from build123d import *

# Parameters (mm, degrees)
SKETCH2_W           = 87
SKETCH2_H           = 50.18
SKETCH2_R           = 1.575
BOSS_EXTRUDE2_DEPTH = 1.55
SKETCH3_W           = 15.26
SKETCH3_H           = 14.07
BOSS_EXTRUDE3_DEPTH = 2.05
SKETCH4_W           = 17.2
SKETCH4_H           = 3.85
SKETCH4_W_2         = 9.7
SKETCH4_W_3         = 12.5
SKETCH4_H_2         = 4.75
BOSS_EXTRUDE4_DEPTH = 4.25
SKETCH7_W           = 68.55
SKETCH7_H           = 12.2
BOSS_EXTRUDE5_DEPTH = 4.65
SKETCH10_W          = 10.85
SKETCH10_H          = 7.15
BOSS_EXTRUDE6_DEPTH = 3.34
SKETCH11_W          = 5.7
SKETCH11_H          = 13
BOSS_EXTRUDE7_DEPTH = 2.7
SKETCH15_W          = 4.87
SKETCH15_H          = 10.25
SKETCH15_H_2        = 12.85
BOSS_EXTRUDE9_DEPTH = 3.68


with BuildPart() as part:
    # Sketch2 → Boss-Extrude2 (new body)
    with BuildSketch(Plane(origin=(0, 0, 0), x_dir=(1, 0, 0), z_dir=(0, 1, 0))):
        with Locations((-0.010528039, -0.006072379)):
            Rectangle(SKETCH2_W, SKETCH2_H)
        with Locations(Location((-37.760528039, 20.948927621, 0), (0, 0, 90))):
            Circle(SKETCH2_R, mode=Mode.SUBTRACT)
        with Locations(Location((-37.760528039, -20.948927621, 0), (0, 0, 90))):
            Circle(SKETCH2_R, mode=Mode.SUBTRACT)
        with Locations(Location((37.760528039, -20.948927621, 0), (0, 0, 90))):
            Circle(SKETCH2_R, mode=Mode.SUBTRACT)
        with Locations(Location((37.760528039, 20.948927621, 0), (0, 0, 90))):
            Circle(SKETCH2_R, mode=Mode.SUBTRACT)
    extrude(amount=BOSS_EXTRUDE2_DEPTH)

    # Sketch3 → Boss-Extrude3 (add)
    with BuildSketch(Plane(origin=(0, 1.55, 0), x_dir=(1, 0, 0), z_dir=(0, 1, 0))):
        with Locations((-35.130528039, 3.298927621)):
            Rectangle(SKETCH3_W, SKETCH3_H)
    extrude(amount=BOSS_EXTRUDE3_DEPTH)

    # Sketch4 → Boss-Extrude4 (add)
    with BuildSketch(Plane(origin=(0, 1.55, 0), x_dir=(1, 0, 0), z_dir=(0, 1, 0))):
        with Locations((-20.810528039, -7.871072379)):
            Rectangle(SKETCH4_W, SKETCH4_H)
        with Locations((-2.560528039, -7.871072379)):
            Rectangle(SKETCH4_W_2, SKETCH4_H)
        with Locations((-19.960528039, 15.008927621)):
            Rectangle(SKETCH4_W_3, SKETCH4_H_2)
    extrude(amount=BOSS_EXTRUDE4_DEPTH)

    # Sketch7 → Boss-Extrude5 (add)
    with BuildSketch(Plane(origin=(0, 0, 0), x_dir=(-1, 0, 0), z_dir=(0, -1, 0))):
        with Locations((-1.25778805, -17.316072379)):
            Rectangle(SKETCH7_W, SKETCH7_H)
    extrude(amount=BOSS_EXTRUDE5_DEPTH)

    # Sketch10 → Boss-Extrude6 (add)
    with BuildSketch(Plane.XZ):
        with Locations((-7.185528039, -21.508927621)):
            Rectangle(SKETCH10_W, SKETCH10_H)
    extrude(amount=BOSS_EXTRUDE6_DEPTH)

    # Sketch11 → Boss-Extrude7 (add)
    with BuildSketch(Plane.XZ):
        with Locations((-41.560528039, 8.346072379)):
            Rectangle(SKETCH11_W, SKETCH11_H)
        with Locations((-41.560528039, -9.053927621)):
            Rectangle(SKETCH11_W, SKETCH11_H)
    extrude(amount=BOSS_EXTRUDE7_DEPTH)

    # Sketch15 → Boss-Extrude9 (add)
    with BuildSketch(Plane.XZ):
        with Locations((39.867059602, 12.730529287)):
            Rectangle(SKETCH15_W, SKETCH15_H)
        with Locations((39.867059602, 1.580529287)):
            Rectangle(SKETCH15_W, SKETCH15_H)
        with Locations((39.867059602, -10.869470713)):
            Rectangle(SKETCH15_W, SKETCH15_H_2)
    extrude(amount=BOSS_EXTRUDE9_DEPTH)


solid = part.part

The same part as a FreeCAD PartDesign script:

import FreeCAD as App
import Part
import Sketcher

V = App.Vector


def add_polygon(sketch, points):
    """Adds a closed chain of lines whose ends are joined by coincident constraints."""
    first, n = sketch.GeometryCount, len(points)
    for a, b in zip(points, points[1:] + points[:1]):
        sketch.addGeometry(Part.LineSegment(App.Vector(*a, 0), App.Vector(*b, 0)), False)
    for i in range(n):
        sketch.addConstraint(Sketcher.Constraint("Coincident", first + i, 2, first + (i + 1) % n, 1))

doc = App.newDocument("Part")
params = doc.addObject("Spreadsheet::Sheet", "Params")
for row, (alias, value) in enumerate([
    ("sketch1_diameter", "3.15 mm"),
    ("sketch1_width", "87 mm"),
    ("sketch1_height", "50.18 mm"),
    ("pad1_length", "1.55 mm"),
    ("sketch2_width", "15.26 mm"),
    ("sketch2_height", "14.07 mm"),
    ("pad2_length", "2.05 mm"),
    ("sketch3_width", "17.2 mm"),
    ("sketch3_width2", "9.7 mm"),
    ("sketch3_width3", "12.5 mm"),
    ("sketch3_height", "3.85 mm"),
    ("sketch3_height2", "4.75 mm"),
    ("pad3_length", "4.25 mm"),
    ("sketch4_height", "12.2 mm"),
    ("sketch4_width", "68.55 mm"),
    ("pad4_length", "4.65 mm"),
    ("sketch5_width", "10.85 mm"),
    ("sketch5_height", "7.15 mm"),
    ("pad5_length", "3.34 mm"),
    ("sketch6_height", "13 mm"),
    ("sketch6_width", "5.7 mm"),
    ("pad6_length", "2.7 mm"),
    ("sketch7_width", "4.87 mm"),
    ("sketch7_height", "10.25 mm"),
    ("sketch7_height2", "12.85 mm"),
    ("pad7_length", "3.68 mm"),
], start=1):
    params.set(f"A{row}", alias)
    params.set(f"B{row}", "=" + value)
    params.setAlias(f"B{row}", alias)

body = doc.addObject("PartDesign::Body", "Body")

# Sketch on XZ plane
sketch1 = body.newObject("Sketcher::SketchObject", "Sketch")
sketch1.AttachmentSupport = (doc.getObject("XZ_Plane"), [""])
sketch1.MapMode = "FlatFace"
add_polygon(sketch1, [(-43.5, -25.1), (-43.5, 25.1), (43.5, 25.1), (43.5, -25.1)])  # lines 0-3
sketch1.addGeometry(Part.Circle(V(-37.8, 20.9, 0), V(0, 0, 1), 1.6), False)  # 4
sketch1.addGeometry(Part.Circle(V(37.8, 20.9, 0), V(0, 0, 1), 1.6), False)  # 5
sketch1.addGeometry(Part.Circle(V(-37.8, -20.9, 0), V(0, 0, 1), 1.6), False)  # 6
sketch1.addGeometry(Part.Circle(V(37.8, -20.9, 0), V(0, 0, 1), 1.6), False)  # 7
sketch1.addConstraint([
    Sketcher.Constraint("Vertical", 0),
    Sketcher.Constraint("Horizontal", 1),
    Sketcher.Constraint("Vertical", 2),
    Sketcher.Constraint("Horizontal", 3),
    Sketcher.Constraint("Equal", 4, 5),
    Sketcher.Constraint("Equal", 5, 6),
    Sketcher.Constraint("Equal", 6, 7),
    Sketcher.Constraint("Symmetric", 5, 3, 6, 3, -1, 1),
    Sketcher.Constraint("Symmetric", 4, 3, 7, 3, -1, 1),
    Sketcher.Constraint("Symmetric", 4, 3, 5, 3, -2),
    Sketcher.Constraint("Diameter", 4, 3.15),
    Sketcher.Constraint("DistanceX", 1, 1, 1, 2, 87.0),
    Sketcher.Constraint("DistanceY", 0, 1, 0, 2, 50.18),
    Sketcher.Constraint("DistanceX", 0, 2, 4, 3, 5.75),
    Sketcher.Constraint("DistanceY", 6, 3, 0, 2, 46.045),
    Sketcher.Constraint("DistanceX", 4, 3, -1, 1, 37.760528),
    Sketcher.Constraint("DistanceY", -1, 1, 4, 3, 20.948928),
])
sketch1.setExpression("Constraints[14]", "Params.sketch1_diameter")
sketch1.setExpression("Constraints[15]", "Params.sketch1_width")
sketch1.setExpression("Constraints[16]", "Params.sketch1_height")
pad1 = body.newObject("PartDesign::Pad", "Pad")
pad1.Profile = sketch1
pad1.setExpression("Length", "Params.pad1_length")
pad1.Reversed = True

# Sketch on XZ plane
sketch2 = body.newObject("Sketcher::SketchObject", "Sketch001")
sketch2.AttachmentSupport = (doc.getObject("XZ_Plane"), [""])
sketch2.MapMode = "FlatFace"
sketch2.AttachmentOffset = App.Placement(V(0, 0, -1.55), App.Rotation())
add_polygon(sketch2, [(-43, -10), (-43, 4), (-28, 4), (-28, -10)])  # lines 0-3
sketch2.addConstraint([
    Sketcher.Constraint("Vertical", 0),
    Sketcher.Constraint("Horizontal", 1),
    Sketcher.Constraint("Vertical", 2),
    Sketcher.Constraint("Horizontal", 3),
    Sketcher.Constraint("DistanceX", 1, 1, 1, 2, 15.26),
    Sketcher.Constraint("DistanceY", 0, 1, 0, 2, 14.07),
    Sketcher.Constraint("DistanceX", 0, 2, -1, 1, 42.760528),
    Sketcher.Constraint("DistanceY", -1, 1, 0, 2, 3.736072),
])
sketch2.setExpression("Constraints[8]", "Params.sketch2_width")
sketch2.setExpression("Constraints[9]", "Params.sketch2_height")
pad2 = body.newObject("PartDesign::Pad", "Pad001")
pad2.Profile = sketch2
pad2.setExpression("Length", "Params.pad2_length")
pad2.Reversed = True

# Sketch on XZ plane
sketch3 = body.newObject("Sketcher::SketchObject", "Sketch002")
sketch3.AttachmentSupport = (doc.getObject("XZ_Plane"), [""])
sketch3.MapMode = "FlatFace"
sketch3.AttachmentOffset = App.Placement(V(0, 0, -1.55), App.Rotation())
add_polygon(sketch3, [(-29.4, 5.9), (-29.4, 9.8), (-12.2, 9.8), (-12.2, 5.9)])  # lines 0-3
add_polygon(sketch3, [(-7.4, 5.9), (-7.4, 9.8), (2.3, 9.8), (2.3, 5.9)])  # lines 4-7
add_polygon(sketch3, [(-26.2, -17.4), (-26.2, -12.6), (-13.7, -12.6), (-13.7, -17.4)])  # lines 8-11
sketch3.addConstraint([
    Sketcher.Constraint("Vertical", 0),
    Sketcher.Constraint("Horizontal", 1),
    Sketcher.Constraint("Vertical", 2),
    Sketcher.Constraint("Horizontal", 3),
    Sketcher.Constraint("Vertical", 4),
    Sketcher.Constraint("Horizontal", 5),
    Sketcher.Constraint("Vertical", 6),
    Sketcher.Constraint("Horizontal", 7),
    Sketcher.Constraint("Vertical", 8),
    Sketcher.Constraint("Horizontal", 9),
    Sketcher.Constraint("Vertical", 10),
    Sketcher.Constraint("Horizontal", 11),
    Sketcher.Constraint("Horizontal", 1, 2, 4, 2),
    Sketcher.Constraint("Horizontal", 3, 2, 6, 2),
    Sketcher.Constraint("DistanceX", 1, 1, 1, 2, 17.2),
    Sketcher.Constraint("DistanceX", 5, 1, 5, 2, 9.7),
    Sketcher.Constraint("DistanceX", 9, 1, 9, 2, 12.5),
    Sketcher.Constraint("DistanceX", 0, 2, 4, 2, 22.0),
    Sketcher.Constraint("DistanceX", 8, 2, 2, 2, 14.0),
    Sketcher.Constraint("DistanceY", 0, 1, 0, 2, 3.85),
    Sketcher.Constraint("DistanceY", 8, 1, 8, 2, 4.75),
    Sketcher.Constraint("DistanceY", 8, 2, 3, 2, 18.58),
    Sketcher.Constraint("DistanceX", 0, 2, -1, 1, 29.410528),
    Sketcher.Constraint("DistanceY", -1, 1, 0, 2, 9.796072),
])
sketch3.setExpression("Constraints[26]", "Params.sketch3_width")
sketch3.setExpression("Constraints[27]", "Params.sketch3_width2")
sketch3.setExpression("Constraints[28]", "Params.sketch3_width3")
sketch3.setExpression("Constraints[31]", "Params.sketch3_height")
sketch3.setExpression("Constraints[32]", "Params.sketch3_height2")
pad3 = body.newObject("PartDesign::Pad", "Pad002")
pad3.Profile = sketch3
pad3.setExpression("Length", "Params.pad3_length")
pad3.Reversed = True

# Sketch on XZ plane
sketch4 = body.newObject("Sketcher::SketchObject", "Sketch003")
sketch4.AttachmentSupport = (doc.getObject("XZ_Plane"), [""])
sketch4.MapMode = "FlatFace"
add_polygon(sketch4, [(36, 11), (36, 23), (-33, 23), (-33, 11)])  # lines 0-3
sketch4.addConstraint([
    Sketcher.Constraint("Vertical", 0),
    Sketcher.Constraint("Horizontal", 1),
    Sketcher.Constraint("Vertical", 2),
    Sketcher.Constraint("Horizontal", 3),
    Sketcher.Constraint("DistanceY", 0, 1, 0, 2, 12.2),
    Sketcher.Constraint("DistanceX", 1, 2, 1, 1, 68.55),
    Sketcher.Constraint("DistanceX", -1, 1, 0, 2, 35.532788),
    Sketcher.Constraint("DistanceY", -1, 1, 0, 2, 23.416072),
])
sketch4.setExpression("Constraints[8]", "Params.sketch4_height")
sketch4.setExpression("Constraints[9]", "Params.sketch4_width")
pad4 = body.newObject("PartDesign::Pad", "Pad003")
pad4.Profile = sketch4
pad4.setExpression("Length", "Params.pad4_length")

# Sketch on XZ plane
sketch5 = body.newObject("Sketcher::SketchObject", "Sketch004")
sketch5.AttachmentSupport = (doc.getObject("XZ_Plane"), [""])
sketch5.MapMode = "FlatFace"
add_polygon(sketch5, [(-13, -18), (-13, -25), (-2, -25), (-2, -18)])  # lines 0-3
sketch5.addConstraint([
    Sketcher.Constraint("Vertical", 0),
    Sketcher.Constraint("Horizontal", 1),
    Sketcher.Constraint("Vertical", 2),
    Sketcher.Constraint("Horizontal", 3),
    Sketcher.Constraint("DistanceX", 1, 1, 1, 2, 10.85),
    Sketcher.Constraint("DistanceY", 0, 2, 0, 1, 7.15),
    Sketcher.Constraint("DistanceX", 0, 2, -1, 1, 12.610528),
    Sketcher.Constraint("DistanceY", 0, 2, -1, 1, 25.083928),
])
sketch5.setExpression("Constraints[8]", "Params.sketch5_width")
sketch5.setExpression("Constraints[9]", "Params.sketch5_height")
pad5 = body.newObject("PartDesign::Pad", "Pad004")
pad5.Profile = sketch5
pad5.setExpression("Length", "Params.pad5_length")

# Sketch on XZ plane
sketch6 = body.newObject("Sketcher::SketchObject", "Sketch005")
sketch6.AttachmentSupport = (doc.getObject("XZ_Plane"), [""])
sketch6.MapMode = "FlatFace"
add_polygon(sketch6, [(-44, 15), (-44, 2), (-39, 2), (-39, 15)])  # lines 0-3
add_polygon(sketch6, [(-44, -3), (-44, -16), (-39, -16), (-39, -3)])  # lines 4-7
sketch6.addConstraint([
    Sketcher.Constraint("Vertical", 0),
    Sketcher.Constraint("Horizontal", 1),
    Sketcher.Constraint("Vertical", 2),
    Sketcher.Constraint("Horizontal", 3),
    Sketcher.Constraint("Vertical", 4),
    Sketcher.Constraint("Horizontal", 5),
    Sketcher.Constraint("Vertical", 6),
    Sketcher.Constraint("Horizontal", 7),
    Sketcher.Constraint("Vertical", 3, 2, 4, 2),
    Sketcher.Constraint("Vertical", 2, 2, 5, 2),
    Sketcher.Constraint("Equal", 2, 4),
    Sketcher.Constraint("DistanceY", 0, 2, 0, 1, 13.0),
    Sketcher.Constraint("DistanceX", 1, 1, 1, 2, 5.7),
    Sketcher.Constraint("DistanceY", 4, 2, 0, 2, 17.4),
    Sketcher.Constraint("DistanceX", 0, 2, -1, 1, 44.410528),
    Sketcher.Constraint("DistanceY", -1, 1, 0, 2, 1.846072),
])
sketch6.setExpression("Constraints[19]", "Params.sketch6_height")
sketch6.setExpression("Constraints[20]", "Params.sketch6_width")
pad6 = body.newObject("PartDesign::Pad", "Pad005")
pad6.Profile = sketch6
pad6.setExpression("Length", "Params.pad6_length")

# Sketch on XZ plane
sketch7 = body.newObject("Sketcher::SketchObject", "Sketch006")
sketch7.AttachmentSupport = (doc.getObject("XZ_Plane"), [""])
sketch7.MapMode = "FlatFace"
add_polygon(sketch7, [(37.4, 17.9), (37.4, 7.6), (42.3, 7.6), (42.3, 17.9)])  # lines 0-3
add_polygon(sketch7, [(37.4, 6.7), (37.4, -3.5), (42.3, -3.5), (42.3, 6.7)])  # lines 4-7
add_polygon(sketch7, [(37.4, -4.4), (37.4, -17.3), (42.3, -17.3), (42.3, -4.4)])  # lines 8-11
sketch7.addConstraint([
    Sketcher.Constraint("Vertical", 0),
    Sketcher.Constraint("Horizontal", 1),
    Sketcher.Constraint("Vertical", 2),
    Sketcher.Constraint("Horizontal", 3),
    Sketcher.Constraint("Vertical", 4),
    Sketcher.Constraint("Horizontal", 5),
    Sketcher.Constraint("Vertical", 6),
    Sketcher.Constraint("Horizontal", 7),
    Sketcher.Constraint("Vertical", 8),
    Sketcher.Constraint("Horizontal", 9),
    Sketcher.Constraint("Vertical", 10),
    Sketcher.Constraint("Horizontal", 11),
    Sketcher.Constraint("Vertical", 3, 2, 4, 2),
    Sketcher.Constraint("Vertical", 2, 2, 5, 2),
    Sketcher.Constraint("Vertical", 7, 2, 8, 2),
    Sketcher.Constraint("Vertical", 6, 2, 9, 2),
    Sketcher.Constraint("Equal", 2, 4),
    Sketcher.Constraint("DistanceY", 8, 2, 7, 2, 24.0),
    Sketcher.Constraint("DistanceX", 1, 1, 1, 2, 4.87),
    Sketcher.Constraint("DistanceY", 0, 2, 0, 1, 10.25),
    Sketcher.Constraint("DistanceY", 8, 2, 8, 1, 12.85),
    Sketcher.Constraint("DistanceY", 4, 2, 3, 2, 21.4),
    Sketcher.Constraint("DistanceX", -1, 1, 0, 2, 37.43206),
    Sketcher.Constraint("DistanceY", -1, 1, 0, 2, 7.605529),
])
sketch7.setExpression("Constraints[30]", "Params.sketch7_width")
sketch7.setExpression("Constraints[31]", "Params.sketch7_height")
sketch7.setExpression("Constraints[32]", "Params.sketch7_height2")
pad7 = body.newObject("PartDesign::Pad", "Pad006")
pad7.Profile = sketch7
pad7.setExpression("Length", "Params.pad7_length")

doc.recompute()
